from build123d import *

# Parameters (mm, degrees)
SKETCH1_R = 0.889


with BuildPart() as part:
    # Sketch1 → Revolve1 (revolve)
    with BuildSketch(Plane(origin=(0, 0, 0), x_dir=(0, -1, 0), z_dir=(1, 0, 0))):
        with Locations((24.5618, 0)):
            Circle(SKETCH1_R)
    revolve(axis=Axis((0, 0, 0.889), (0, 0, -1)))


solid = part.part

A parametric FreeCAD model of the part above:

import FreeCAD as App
import Part
import Sketcher
from FreeCAD import Vector
Q = App.Units.Quantity

doc = App.newDocument("Part")
body = doc.addObject("PartDesign::Body", "Body")

sketch1 = doc.addObject("Sketcher::SketchObject", "Sketch")
body.addObject(sketch1)
sketch1.AttachmentSupport = (doc.YZ_Plane, [""])
sketch1.MapMode = "FlatFace"
sketch1.addGeometry(Part.Circle(Vector(-24.5618, 0, 0), Vector(0, 0, 1), 0.889), False)
sketch1.addConstraint(Sketcher.Constraint("PointOnObject", 0, 3, -1))
sketch1.addConstraint(Sketcher.Constraint("Diameter", 0, Q("0.07 in")))
sketch1.addConstraint(Sketcher.Constraint("DistanceX", 0, 3, -1, 1, Q("0.967 in")))
revolution = doc.addObject("PartDesign::Revolution", "Revolution")
body.addObject(revolution)
revolution.Profile = sketch1
revolution.ReferenceAxis = (sketch1, ["V_Axis"])
revolution.Angle = 360

doc.recompute()
